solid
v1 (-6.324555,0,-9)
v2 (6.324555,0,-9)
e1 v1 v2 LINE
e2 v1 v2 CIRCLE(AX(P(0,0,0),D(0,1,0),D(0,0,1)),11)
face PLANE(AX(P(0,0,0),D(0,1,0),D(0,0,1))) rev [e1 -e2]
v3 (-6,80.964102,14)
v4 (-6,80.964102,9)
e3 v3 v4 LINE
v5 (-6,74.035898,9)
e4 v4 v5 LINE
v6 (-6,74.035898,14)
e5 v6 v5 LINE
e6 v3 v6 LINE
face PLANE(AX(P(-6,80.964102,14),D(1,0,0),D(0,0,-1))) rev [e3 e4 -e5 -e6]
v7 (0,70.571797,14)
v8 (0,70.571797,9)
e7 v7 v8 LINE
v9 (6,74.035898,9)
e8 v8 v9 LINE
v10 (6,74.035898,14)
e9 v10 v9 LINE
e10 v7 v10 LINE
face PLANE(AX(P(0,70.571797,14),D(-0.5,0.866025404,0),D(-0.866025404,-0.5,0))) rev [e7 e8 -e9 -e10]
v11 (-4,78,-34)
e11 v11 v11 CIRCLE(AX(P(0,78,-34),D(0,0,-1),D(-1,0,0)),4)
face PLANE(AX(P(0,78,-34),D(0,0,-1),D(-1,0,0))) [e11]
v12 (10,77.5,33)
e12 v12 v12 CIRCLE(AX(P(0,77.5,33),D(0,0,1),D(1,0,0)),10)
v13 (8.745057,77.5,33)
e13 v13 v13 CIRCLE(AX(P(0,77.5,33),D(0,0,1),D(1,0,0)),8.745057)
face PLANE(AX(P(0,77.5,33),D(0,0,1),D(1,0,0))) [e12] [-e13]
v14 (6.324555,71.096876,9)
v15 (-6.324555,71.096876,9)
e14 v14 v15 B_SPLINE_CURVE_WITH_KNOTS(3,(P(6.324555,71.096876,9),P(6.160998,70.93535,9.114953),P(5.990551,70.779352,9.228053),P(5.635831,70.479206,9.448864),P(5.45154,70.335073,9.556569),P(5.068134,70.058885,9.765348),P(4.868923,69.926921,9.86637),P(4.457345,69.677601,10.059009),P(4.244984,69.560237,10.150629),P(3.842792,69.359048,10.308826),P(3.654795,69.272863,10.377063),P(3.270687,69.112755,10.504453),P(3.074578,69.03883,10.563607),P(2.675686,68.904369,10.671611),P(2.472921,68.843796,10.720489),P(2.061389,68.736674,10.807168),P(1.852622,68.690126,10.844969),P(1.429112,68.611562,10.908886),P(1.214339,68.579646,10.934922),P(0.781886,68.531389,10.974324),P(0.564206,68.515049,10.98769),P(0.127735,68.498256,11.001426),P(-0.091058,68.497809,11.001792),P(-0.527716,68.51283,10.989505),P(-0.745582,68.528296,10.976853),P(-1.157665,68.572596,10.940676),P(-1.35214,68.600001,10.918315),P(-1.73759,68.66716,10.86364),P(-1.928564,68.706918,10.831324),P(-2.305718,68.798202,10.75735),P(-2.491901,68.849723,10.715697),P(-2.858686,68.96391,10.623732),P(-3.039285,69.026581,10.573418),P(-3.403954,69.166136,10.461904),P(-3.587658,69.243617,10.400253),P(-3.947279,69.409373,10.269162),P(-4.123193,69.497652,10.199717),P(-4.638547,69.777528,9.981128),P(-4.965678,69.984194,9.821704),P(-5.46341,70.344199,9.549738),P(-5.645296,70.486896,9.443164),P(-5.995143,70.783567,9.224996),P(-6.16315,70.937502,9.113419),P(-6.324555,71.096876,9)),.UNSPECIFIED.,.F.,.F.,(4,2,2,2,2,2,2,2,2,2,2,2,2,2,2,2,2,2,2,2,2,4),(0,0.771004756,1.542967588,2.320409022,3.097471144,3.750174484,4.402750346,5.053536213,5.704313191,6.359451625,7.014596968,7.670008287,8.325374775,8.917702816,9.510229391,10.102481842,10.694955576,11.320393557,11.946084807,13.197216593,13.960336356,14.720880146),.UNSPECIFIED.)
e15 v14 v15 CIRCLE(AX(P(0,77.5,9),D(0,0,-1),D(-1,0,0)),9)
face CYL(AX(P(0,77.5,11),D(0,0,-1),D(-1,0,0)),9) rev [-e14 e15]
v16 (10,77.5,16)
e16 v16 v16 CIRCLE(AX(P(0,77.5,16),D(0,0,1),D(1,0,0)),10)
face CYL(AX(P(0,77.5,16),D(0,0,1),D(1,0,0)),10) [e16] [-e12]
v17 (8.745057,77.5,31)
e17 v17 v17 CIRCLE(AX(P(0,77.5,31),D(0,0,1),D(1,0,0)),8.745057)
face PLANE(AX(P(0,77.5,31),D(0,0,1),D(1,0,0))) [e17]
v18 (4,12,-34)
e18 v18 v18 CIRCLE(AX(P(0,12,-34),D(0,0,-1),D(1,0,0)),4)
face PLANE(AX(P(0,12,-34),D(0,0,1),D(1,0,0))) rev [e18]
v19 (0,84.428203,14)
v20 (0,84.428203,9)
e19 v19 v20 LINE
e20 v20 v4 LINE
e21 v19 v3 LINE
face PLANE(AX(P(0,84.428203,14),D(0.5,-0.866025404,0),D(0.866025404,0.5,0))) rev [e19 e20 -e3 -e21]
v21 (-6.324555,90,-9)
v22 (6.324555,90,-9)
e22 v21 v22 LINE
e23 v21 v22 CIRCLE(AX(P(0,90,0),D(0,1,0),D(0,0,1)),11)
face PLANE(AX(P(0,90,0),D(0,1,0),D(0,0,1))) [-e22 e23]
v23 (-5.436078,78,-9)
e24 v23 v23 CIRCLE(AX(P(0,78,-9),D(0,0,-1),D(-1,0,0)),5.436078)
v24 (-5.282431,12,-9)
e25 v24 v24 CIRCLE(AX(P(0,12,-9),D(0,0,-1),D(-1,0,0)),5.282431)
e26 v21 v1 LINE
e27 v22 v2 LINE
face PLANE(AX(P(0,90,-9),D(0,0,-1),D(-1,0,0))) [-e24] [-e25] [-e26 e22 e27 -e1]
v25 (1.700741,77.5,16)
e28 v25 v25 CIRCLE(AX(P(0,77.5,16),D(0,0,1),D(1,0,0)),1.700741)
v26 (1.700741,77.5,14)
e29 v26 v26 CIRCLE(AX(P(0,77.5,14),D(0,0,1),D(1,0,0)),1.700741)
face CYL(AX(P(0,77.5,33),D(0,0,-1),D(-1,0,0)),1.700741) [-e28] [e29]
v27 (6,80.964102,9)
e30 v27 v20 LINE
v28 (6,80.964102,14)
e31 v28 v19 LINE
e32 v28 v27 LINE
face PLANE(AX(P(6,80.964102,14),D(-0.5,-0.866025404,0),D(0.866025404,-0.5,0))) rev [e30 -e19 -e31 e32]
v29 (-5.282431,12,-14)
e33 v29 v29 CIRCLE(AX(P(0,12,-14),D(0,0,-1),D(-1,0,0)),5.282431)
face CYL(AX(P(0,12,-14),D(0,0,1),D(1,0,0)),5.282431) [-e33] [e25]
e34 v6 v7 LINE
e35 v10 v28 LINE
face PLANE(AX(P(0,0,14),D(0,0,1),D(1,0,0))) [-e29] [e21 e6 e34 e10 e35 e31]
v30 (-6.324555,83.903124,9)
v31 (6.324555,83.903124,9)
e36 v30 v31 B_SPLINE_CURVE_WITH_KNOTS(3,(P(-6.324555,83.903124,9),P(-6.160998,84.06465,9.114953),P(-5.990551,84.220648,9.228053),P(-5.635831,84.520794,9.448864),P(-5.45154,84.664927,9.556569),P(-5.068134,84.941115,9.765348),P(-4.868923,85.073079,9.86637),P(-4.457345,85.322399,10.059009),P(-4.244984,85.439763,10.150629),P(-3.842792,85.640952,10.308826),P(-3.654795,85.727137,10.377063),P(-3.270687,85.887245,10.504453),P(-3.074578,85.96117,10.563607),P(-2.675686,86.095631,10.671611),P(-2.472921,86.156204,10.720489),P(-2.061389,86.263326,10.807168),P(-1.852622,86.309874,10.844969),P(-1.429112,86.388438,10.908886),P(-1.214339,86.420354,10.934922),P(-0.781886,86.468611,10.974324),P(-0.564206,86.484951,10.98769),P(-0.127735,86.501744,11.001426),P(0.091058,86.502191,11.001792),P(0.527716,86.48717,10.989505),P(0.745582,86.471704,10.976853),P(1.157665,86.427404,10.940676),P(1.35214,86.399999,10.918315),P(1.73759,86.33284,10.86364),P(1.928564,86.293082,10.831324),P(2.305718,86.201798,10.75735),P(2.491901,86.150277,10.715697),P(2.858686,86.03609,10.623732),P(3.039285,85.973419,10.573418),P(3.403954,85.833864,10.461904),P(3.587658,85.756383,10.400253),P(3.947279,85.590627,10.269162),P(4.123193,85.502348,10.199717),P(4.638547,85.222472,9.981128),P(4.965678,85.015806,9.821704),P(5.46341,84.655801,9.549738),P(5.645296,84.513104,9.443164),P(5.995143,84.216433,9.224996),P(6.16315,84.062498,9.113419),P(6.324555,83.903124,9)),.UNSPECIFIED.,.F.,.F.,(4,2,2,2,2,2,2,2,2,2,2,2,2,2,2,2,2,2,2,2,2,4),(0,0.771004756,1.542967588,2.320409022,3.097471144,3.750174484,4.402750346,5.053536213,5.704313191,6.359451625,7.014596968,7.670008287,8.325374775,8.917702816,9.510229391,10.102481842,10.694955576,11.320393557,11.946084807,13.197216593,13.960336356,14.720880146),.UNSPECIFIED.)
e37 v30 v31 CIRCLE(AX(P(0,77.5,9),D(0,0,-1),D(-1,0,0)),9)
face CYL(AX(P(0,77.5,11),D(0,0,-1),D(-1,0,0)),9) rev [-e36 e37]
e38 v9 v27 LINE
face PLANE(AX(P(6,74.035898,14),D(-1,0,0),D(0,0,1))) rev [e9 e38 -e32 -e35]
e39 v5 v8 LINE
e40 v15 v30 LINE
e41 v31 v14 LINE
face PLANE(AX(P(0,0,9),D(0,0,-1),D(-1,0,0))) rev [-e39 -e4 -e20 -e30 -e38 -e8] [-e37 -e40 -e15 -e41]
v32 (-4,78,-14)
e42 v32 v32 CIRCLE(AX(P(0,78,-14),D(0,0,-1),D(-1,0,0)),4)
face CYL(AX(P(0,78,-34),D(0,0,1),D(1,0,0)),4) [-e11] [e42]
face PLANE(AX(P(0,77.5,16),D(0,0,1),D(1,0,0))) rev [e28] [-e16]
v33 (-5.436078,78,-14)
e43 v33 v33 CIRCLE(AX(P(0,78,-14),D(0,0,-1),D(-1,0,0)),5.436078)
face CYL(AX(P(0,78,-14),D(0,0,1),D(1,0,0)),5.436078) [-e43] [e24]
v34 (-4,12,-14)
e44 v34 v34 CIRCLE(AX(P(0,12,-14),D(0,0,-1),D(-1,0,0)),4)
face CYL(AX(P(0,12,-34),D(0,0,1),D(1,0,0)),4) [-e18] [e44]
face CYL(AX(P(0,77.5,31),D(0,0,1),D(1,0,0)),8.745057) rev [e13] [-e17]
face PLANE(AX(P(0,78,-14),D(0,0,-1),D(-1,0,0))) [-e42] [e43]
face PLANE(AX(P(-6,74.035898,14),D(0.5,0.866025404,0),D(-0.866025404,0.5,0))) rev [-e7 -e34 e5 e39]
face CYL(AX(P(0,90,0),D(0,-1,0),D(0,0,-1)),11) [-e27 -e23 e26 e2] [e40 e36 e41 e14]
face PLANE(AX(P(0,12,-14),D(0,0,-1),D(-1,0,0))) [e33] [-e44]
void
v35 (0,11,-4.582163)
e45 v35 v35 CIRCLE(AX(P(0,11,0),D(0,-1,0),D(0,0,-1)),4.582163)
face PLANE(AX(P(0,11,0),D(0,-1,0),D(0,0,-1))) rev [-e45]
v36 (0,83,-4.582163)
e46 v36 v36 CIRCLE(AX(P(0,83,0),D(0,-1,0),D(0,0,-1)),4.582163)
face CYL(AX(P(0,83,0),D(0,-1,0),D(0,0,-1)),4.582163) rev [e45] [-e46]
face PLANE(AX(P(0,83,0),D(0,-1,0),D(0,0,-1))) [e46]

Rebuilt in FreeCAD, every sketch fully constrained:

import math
import FreeCAD as App
import Part
import Sketcher
from FreeCAD import Vector
Q = App.Units.Quantity

doc = App.newDocument("Part")
body = doc.addObject("PartDesign::Body", "Body")

# Sketch on XZ plane
sketch1 = doc.addObject("Sketcher::SketchObject", "Sketch")
body.addObject(sketch1)
sketch1.AttachmentSupport = (doc.XZ_Plane, [""])
sketch1.MapMode = "FlatFace"
sketch1.addGeometry([
    Part.LineSegment(Vector(6, -9, 0), Vector(-6, -9, 0)),
    Part.ArcOfCircle(Part.Circle(Vector(0, 0, 0), Vector(0, 0, 1), 11), math.radians(0), math.radians(235)),
    Part.ArcOfCircle(Part.Circle(Vector(0, 0, 0), Vector(0, 0, 1), 11), math.radians(-55), math.radians(0)),
], False)
sketch1.addConstraint([
    Sketcher.Constraint("Coincident", 0, 2, 1, 2),
    Sketcher.Constraint("Tangent", 1, 1, 2, 2),
    Sketcher.Constraint("Coincident", 2, 1, 0, 1),
    Sketcher.Constraint("Horizontal", 0),
    Sketcher.Constraint("Coincident", 1, 3, -1, 1),
    Sketcher.Constraint("Equal", 1, 2),
    Sketcher.Constraint("PointOnObject", 1, 1, -1),
    Sketcher.Constraint("Radius", 1, 11.0),
    Sketcher.Constraint("DistanceY", 0, 2, -1, 1, 9.0),
])
pad1 = doc.addObject("PartDesign::Pad", "Pad")
body.addObject(pad1)
pad1.Profile = sketch1
pad1.Length = 90
pad1.Reversed = True

# Sketch on XY plane
sketch2 = doc.addObject("Sketcher::SketchObject", "Sketch001")
body.addObject(sketch2)
sketch2.AttachmentSupport = (doc.XY_Plane, [""])
sketch2.MapMode = "FlatFace"
sketch2.AttachmentOffset = App.Placement(Vector(0, 0, 9), App.Rotation())
sketch2.addGeometry(Part.Circle(Vector(0, 78, 0), Vector(0, 0, 1), 9), False)
sketch2.addConstraint([
    Sketcher.Constraint("PointOnObject", 0, 3, -2),
    Sketcher.Constraint("Diameter", 0, 18.0),
    Sketcher.Constraint("DistanceY", -1, 1, 0, 3, 77.5),
])
pocket1 = doc.addObject("PartDesign::Pocket", "Pocket")
body.addObject(pocket1)
pocket1.Profile = sketch2
pocket1.Type = "ThroughAll"
pocket1.Reversed = True

# Sketch on XY plane
sketch3 = doc.addObject("Sketcher::SketchObject", "Sketch002")
body.addObject(sketch3)
sketch3.AttachmentSupport = (doc.XY_Plane, [""])
sketch3.MapMode = "FlatFace"
sketch3.AttachmentOffset = App.Placement(Vector(0, 0, 9), App.Rotation())
sketch3.addGeometry([
    Part.LineSegment(Vector(0, 71, 0), Vector(6, 74, 0)),  # 0
    Part.LineSegment(Vector(6, 74, 0), Vector(6, 81, 0)),  # 1
    Part.LineSegment(Vector(6, 81, 0), Vector(0, 84, 0)),  # 2
    Part.LineSegment(Vector(0, 84, 0), Vector(-6, 81, 0)),  # 3
    Part.LineSegment(Vector(-6, 81, 0), Vector(-6, 74, 0)),  # 4
    Part.LineSegment(Vector(-6, 74, 0), Vector(0, 71, 0)),  # 5
], False)
sketch3.addConstraint([
    Sketcher.Constraint("Coincident", 0, 2, 1, 1),
    Sketcher.Constraint("Coincident", 1, 2, 2, 1),
    Sketcher.Constraint("Coincident", 2, 2, 3, 1),
    Sketcher.Constraint("Coincident", 3, 2, 4, 1),
    Sketcher.Constraint("Coincident", 4, 2, 5, 1),
    Sketcher.Constraint("Coincident", 5, 2, 0, 1),
    Sketcher.Constraint("Vertical", 1),
    Sketcher.Constraint("Vertical", 4),
    Sketcher.Constraint("Symmetric", 1, 2, 3, 2, -2),
    Sketcher.Constraint("PointOnObject", 2, 2, -2),
    Sketcher.Constraint("PointOnObject", 5, 2, -2),
    Sketcher.Constraint("Parallel", 0, 3),
    Sketcher.Constraint("Parallel", 2, 5),
    Sketcher.Constraint("Angle", 0, Q("30 deg")),
    Sketcher.Constraint("DistanceX", -1, 1, 0, 2, 6.0),
    Sketcher.Constraint("DistanceY", -1, 1, 0, 2, 74.035898),
    Sketcher.Constraint("DistanceY", -1, 1, 1, 2, 80.964102),
])
pad2 = doc.addObject("PartDesign::Pad", "Pad001")
body.addObject(pad2)
pad2.Profile = sketch3
pad2.Length = 5

# Sketch on XY plane
sketch4 = doc.addObject("Sketcher::SketchObject", "Sketch003")
body.addObject(sketch4)
sketch4.AttachmentSupport = (doc.XY_Plane, [""])
sketch4.MapMode = "FlatFace"
sketch4.AttachmentOffset = App.Placement(Vector(0, 0, 14), App.Rotation())
sketch4.addGeometry(Part.Circle(Vector(0, 77.5, 0), Vector(0, 0, 1), 1.7), False)
sketch4.addConstraint([
    Sketcher.Constraint("PointOnObject", 0, 3, -2),
    Sketcher.Constraint("DistanceY", -1, 1, 0, 3, 77.5),
    Sketcher.Constraint("Diameter", 0, 3.401483),
])
pad3 = doc.addObject("PartDesign::Pad", "Pad002")
body.addObject(pad3)
pad3.Profile = sketch4
pad3.Length = 19

# Sketch on XY plane
sketch5 = doc.addObject("Sketcher::SketchObject", "Sketch004")
body.addObject(sketch5)
sketch5.AttachmentSupport = (doc.XY_Plane, [""])
sketch5.MapMode = "FlatFace"
sketch5.AttachmentOffset = App.Placement(Vector(0, 0, 33), App.Rotation())
sketch5.addGeometry(Part.Circle(Vector(0, 78, 0), Vector(0, 0, 1), 10), False)
sketch5.addConstraint([
    Sketcher.Constraint("PointOnObject", 0, 3, -2),
    Sketcher.Constraint("Diameter", 0, 20.0),
    Sketcher.Constraint("DistanceY", -1, 1, 0, 3, 77.5),
])
pad4 = doc.addObject("PartDesign::Pad", "Pad003")
body.addObject(pad4)
pad4.Profile = sketch5
pad4.Length = 17
pad4.Reversed = True

# Sketch on XY plane
sketch6 = doc.addObject("Sketcher::SketchObject", "Sketch005")
body.addObject(sketch6)
sketch6.AttachmentSupport = (doc.XY_Plane, [""])
sketch6.MapMode = "FlatFace"
sketch6.AttachmentOffset = App.Placement(Vector(0, 0, 33), App.Rotation())
sketch6.addGeometry(Part.Circle(Vector(0, 78, 0), Vector(0, 0, 1), 9), False)
sketch6.addConstraint([
    Sketcher.Constraint("PointOnObject", 0, 3, -2),
    Sketcher.Constraint("DistanceY", -1, 1, 0, 3, 77.5),
    Sketcher.Constraint("Diameter", 0, 17.490115),
])
pocket2 = doc.addObject("PartDesign::Pocket", "Pocket001")
body.addObject(pocket2)
pocket2.Profile = sketch6
pocket2.Length = 2

# Sketch on XZ plane
sketch7 = doc.addObject("Sketcher::SketchObject", "Sketch006")
body.addObject(sketch7)
sketch7.AttachmentSupport = (doc.XZ_Plane, [""])
sketch7.MapMode = "FlatFace"
sketch7.AttachmentOffset = App.Placement(Vector(0, 0, -11), App.Rotation())
sketch7.addGeometry(Part.Circle(Vector(0, 0, 0), Vector(0, 0, 1), 4.6), False)
sketch7.addConstraint([
    Sketcher.Constraint("Coincident", 0, 3, -1, 1),
    Sketcher.Constraint("Diameter", 0, 9.164326),
])
pocket3 = doc.addObject("PartDesign::Pocket", "Pocket002")
body.addObject(pocket3)
pocket3.Profile = sketch7
pocket3.Length = 72

# Sketch on XY plane
sketch8 = doc.addObject("Sketcher::SketchObject", "Sketch007")
body.addObject(sketch8)
sketch8.AttachmentSupport = (doc.XY_Plane, [""])
sketch8.MapMode = "FlatFace"
sketch8.AttachmentOffset = App.Placement(Vector(0, 0, -9), App.Rotation())
sketch8.addGeometry([
    Part.Circle(Vector(0, 78, 0), Vector(0, 0, 1), 4),
    Part.Circle(Vector(0, 12, 0), Vector(0, 0, 1), 4),
], False)
sketch8.addConstraint([
    Sketcher.Constraint("Equal", 0, 1),
    Sketcher.Constraint("PointOnObject", 0, 3, -2),
    Sketcher.Constraint("PointOnObject", 1, 3, -2),
    Sketcher.Constraint("Diameter", 0, 8.0),
    Sketcher.Constraint("DistanceY", -1, 1, 0, 3, 78.0),
    Sketcher.Constraint("DistanceY", -1, 1, 1, 3, 12.0),
])
pad5 = doc.addObject("PartDesign::Pad", "Pad004")
body.addObject(pad5)
pad5.Profile = sketch8
pad5.Length = 25
pad5.Reversed = True

# Sketch on XY plane
sketch9 = doc.addObject("Sketcher::SketchObject", "Sketch008")
body.addObject(sketch9)
sketch9.AttachmentSupport = (doc.XY_Plane, [""])
sketch9.MapMode = "FlatFace"
sketch9.AttachmentOffset = App.Placement(Vector(0, 0, -9), App.Rotation())
sketch9.addGeometry([
    Part.Circle(Vector(0, 78, 0), Vector(0, 0, 1), 5),
    Part.Circle(Vector(0, 12, 0), Vector(0, 0, 1), 5),
], False)
sketch9.addConstraint([
    Sketcher.Constraint("PointOnObject", 0, 3, -2),
    Sketcher.Constraint("PointOnObject", 1, 3, -2),
    Sketcher.Constraint("DistanceY", -1, 1, 0, 3, 78.0),
    Sketcher.Constraint("DistanceY", -1, 1, 1, 3, 12.0),
    Sketcher.Constraint("Diameter", 1, 10.564861),
    Sketcher.Constraint("Diameter", 0, 10.872155),
])
pad6 = doc.addObject("PartDesign::Pad", "Pad005")
body.addObject(pad6)
pad6.Profile = sketch9
pad6.Length = 5
pad6.Reversed = True

doc.recompute()
